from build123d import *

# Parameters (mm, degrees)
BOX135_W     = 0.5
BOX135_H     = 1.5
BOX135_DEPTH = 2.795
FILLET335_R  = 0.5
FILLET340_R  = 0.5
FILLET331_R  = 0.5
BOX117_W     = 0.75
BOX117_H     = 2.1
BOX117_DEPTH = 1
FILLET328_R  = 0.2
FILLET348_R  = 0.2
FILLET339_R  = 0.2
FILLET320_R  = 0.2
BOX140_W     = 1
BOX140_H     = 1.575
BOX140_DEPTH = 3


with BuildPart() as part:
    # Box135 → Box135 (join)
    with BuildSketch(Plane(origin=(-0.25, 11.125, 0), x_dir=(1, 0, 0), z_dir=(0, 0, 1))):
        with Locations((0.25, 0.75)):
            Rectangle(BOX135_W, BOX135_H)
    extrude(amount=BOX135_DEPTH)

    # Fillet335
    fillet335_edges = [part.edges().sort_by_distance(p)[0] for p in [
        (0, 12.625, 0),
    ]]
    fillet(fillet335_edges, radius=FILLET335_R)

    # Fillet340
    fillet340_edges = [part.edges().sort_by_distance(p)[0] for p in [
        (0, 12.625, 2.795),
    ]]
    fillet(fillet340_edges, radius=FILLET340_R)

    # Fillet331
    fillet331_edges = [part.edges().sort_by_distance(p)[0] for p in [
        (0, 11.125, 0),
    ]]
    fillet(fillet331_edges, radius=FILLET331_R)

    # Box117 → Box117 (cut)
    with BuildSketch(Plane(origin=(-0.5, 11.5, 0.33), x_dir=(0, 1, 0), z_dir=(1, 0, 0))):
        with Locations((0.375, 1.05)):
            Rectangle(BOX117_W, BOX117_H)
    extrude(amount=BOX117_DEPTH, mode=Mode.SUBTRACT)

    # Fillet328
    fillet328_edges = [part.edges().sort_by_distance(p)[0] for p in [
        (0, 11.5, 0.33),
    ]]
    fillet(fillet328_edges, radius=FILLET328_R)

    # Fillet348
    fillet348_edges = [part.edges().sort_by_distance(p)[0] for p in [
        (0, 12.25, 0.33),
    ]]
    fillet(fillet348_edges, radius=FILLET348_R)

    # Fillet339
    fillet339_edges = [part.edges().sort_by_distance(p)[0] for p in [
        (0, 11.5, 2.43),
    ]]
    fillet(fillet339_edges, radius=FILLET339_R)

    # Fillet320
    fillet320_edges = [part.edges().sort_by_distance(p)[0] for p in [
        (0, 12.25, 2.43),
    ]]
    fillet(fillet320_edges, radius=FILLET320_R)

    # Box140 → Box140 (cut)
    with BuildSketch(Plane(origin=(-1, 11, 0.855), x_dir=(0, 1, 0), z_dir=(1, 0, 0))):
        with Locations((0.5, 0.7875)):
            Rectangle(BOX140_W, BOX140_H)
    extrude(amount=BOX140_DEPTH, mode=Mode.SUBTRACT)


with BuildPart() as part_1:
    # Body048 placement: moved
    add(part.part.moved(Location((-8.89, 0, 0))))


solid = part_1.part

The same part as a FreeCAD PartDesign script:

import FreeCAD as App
import Part
import Sketcher

V = App.Vector
Q = App.Units.Quantity


def edges_at(feature, points):
    """Names of the edges that pass closest to the given points."""
    edges = feature.Shape.Edges
    near = lambda p: min(range(len(edges)), key=lambda i: edges[i].distToShape(Part.Vertex(*p))[0])
    return sorted({f"Edge{near(p) + 1}" for p in points})


def add_polygon(sketch, points):
    """Adds a closed chain of lines whose ends are joined by coincident constraints."""
    first, n = sketch.GeometryCount, len(points)
    for a, b in zip(points, points[1:] + points[:1]):
        sketch.addGeometry(Part.LineSegment(App.Vector(*a, 0), App.Vector(*b, 0)), False)
    for i in range(n):
        sketch.addConstraint(Sketcher.Constraint("Coincident", first + i, 2, first + (i + 1) % n, 1))

doc = App.newDocument("Part")
body = doc.addObject("PartDesign::Body", "Body")

# Sketch on XY plane
sketch1 = body.newObject("Sketcher::SketchObject", "Sketch")
sketch1.AttachmentSupport = (doc.getObject("XY_Plane"), [""])
sketch1.MapMode = "FlatFace"
add_polygon(sketch1, [(-0.25, 12.625), (-0.25, 11.125), (0.25, 11.125), (0.25, 12.625)])  # lines 0-3
sketch1.addConstraint(Sketcher.Constraint("Vertical", 0))
sketch1.addConstraint(Sketcher.Constraint("Horizontal", 1))
sketch1.addConstraint(Sketcher.Constraint("Vertical", 2))
sketch1.addConstraint(Sketcher.Constraint("Horizontal", 3))
sketch1.addConstraint(Sketcher.Constraint("DistanceX", 1, 1, 1, 2, Q("0.5 mm")))
sketch1.addConstraint(Sketcher.Constraint("DistanceY", 0, 2, 0, 1, Q("1.5 mm")))
sketch1.addConstraint(Sketcher.Constraint("DistanceX", 0, 2, -1, 1, Q("0.25 mm")))
sketch1.addConstraint(Sketcher.Constraint("DistanceY", -1, 1, 0, 2, Q("11.125 mm")))
pad1 = body.newObject("PartDesign::Pad", "Pad")
pad1.Profile = sketch1
pad1.Length = 2.795
doc.recompute()

fillet = body.newObject("PartDesign::Fillet", "Fillet")
fillet.Base = (pad1, edges_at(pad1, [(0, 12.625, 0)]))
fillet.Radius = 0.5
doc.recompute()

fillet2 = body.newObject("PartDesign::Fillet", "Fillet001")
fillet2.Base = (fillet, edges_at(fillet, [(0, 12.625, 2.795)]))
fillet2.Radius = 0.5
doc.recompute()

fillet3 = body.newObject("PartDesign::Fillet", "Fillet002")
fillet3.Base = (fillet2, edges_at(fillet2, [(0, 11.125, 0)]))
fillet3.Radius = 0.5

# Sketch on YZ plane
sketch2 = body.newObject("Sketcher::SketchObject", "Sketch001")
sketch2.AttachmentSupport = (doc.getObject("YZ_Plane"), [""])
sketch2.MapMode = "FlatFace"
sketch2.AttachmentOffset = App.Placement(V(0, 0, -0.5), App.Rotation())
add_polygon(sketch2, [(11.5, 2.43), (11.5, 0.33), (12.25, 0.33), (12.25, 2.43)])  # lines 0-3
sketch2.addConstraint(Sketcher.Constraint("Vertical", 0))
sketch2.addConstraint(Sketcher.Constraint("Horizontal", 1))
sketch2.addConstraint(Sketcher.Constraint("Vertical", 2))
sketch2.addConstraint(Sketcher.Constraint("Horizontal", 3))
sketch2.addConstraint(Sketcher.Constraint("DistanceY", 0, 2, 0, 1, Q("2.1 mm")))
sketch2.addConstraint(Sketcher.Constraint("DistanceX", 1, 1, 1, 2, Q("0.75 mm")))
sketch2.addConstraint(Sketcher.Constraint("DistanceX", -1, 1, 0, 2, Q("11.5 mm")))
sketch2.addConstraint(Sketcher.Constraint("DistanceY", -1, 1, 0, 2, Q("0.33 mm")))
pocket1 = body.newObject("PartDesign::Pocket", "Pocket")
pocket1.Profile = sketch2
pocket1.Length = 1
pocket1.Reversed = True
doc.recompute()

fillet4 = body.newObject("PartDesign::Fillet", "Fillet003")
fillet4.Base = (pocket1, edges_at(pocket1, [(0, 11.5, 0.33)]))
fillet4.Radius = 0.2
doc.recompute()

fillet5 = body.newObject("PartDesign::Fillet", "Fillet004")
fillet5.Base = (fillet4, edges_at(fillet4, [(0, 12.25, 0.33)]))
fillet5.Radius = 0.2
doc.recompute()

fillet6 = body.newObject("PartDesign::Fillet", "Fillet005")
fillet6.Base = (fillet5, edges_at(fillet5, [(0, 11.5, 2.43)]))
fillet6.Radius = 0.2
doc.recompute()

fillet7 = body.newObject("PartDesign::Fillet", "Fillet006")
fillet7.Base = (fillet6, edges_at(fillet6, [(0, 12.25, 2.43)]))
fillet7.Radius = 0.2

# Sketch on YZ plane
sketch3 = body.newObject("Sketcher::SketchObject", "Sketch002")
sketch3.AttachmentSupport = (doc.getObject("YZ_Plane"), [""])
sketch3.MapMode = "FlatFace"
sketch3.AttachmentOffset = App.Placement(V(0, 0, -1), App.Rotation())
add_polygon(sketch3, [(11, 2.43), (11, 0.855), (12, 0.855), (12, 2.43)])  # lines 0-3
sketch3.addConstraint(Sketcher.Constraint("Vertical", 0))
sketch3.addConstraint(Sketcher.Constraint("Horizontal", 1))
sketch3.addConstraint(Sketcher.Constraint("Vertical", 2))
sketch3.addConstraint(Sketcher.Constraint("Horizontal", 3))
sketch3.addConstraint(Sketcher.Constraint("DistanceX", 1, 1, 1, 2, Q("1 mm")))
sketch3.addConstraint(Sketcher.Constraint("DistanceX", -1, 1, 0, 2, Q("11 mm")))
sketch3.addConstraint(Sketcher.Constraint("DistanceY", 0, 2, 0, 1, Q("1.575 mm")))
sketch3.addConstraint(Sketcher.Constraint("DistanceY", -1, 1, 2, 2, Q("2.43 mm")))
pocket2 = body.newObject("PartDesign::Pocket", "Pocket001")
pocket2.Profile = sketch3
pocket2.Length = 3
pocket2.Reversed = True
body2 = doc.addObject("PartDesign::Body", "Body001")
doc.recompute()

body.Placement = App.Placement(V(-8.89, 0, 0), App.Rotation(V(0, 0, 1), 0))
boolean = body2.newObject("PartDesign::Boolean", "Boolean")
boolean.Type = "Fuse"
boolean.addObjects([body])

doc.recompute()
